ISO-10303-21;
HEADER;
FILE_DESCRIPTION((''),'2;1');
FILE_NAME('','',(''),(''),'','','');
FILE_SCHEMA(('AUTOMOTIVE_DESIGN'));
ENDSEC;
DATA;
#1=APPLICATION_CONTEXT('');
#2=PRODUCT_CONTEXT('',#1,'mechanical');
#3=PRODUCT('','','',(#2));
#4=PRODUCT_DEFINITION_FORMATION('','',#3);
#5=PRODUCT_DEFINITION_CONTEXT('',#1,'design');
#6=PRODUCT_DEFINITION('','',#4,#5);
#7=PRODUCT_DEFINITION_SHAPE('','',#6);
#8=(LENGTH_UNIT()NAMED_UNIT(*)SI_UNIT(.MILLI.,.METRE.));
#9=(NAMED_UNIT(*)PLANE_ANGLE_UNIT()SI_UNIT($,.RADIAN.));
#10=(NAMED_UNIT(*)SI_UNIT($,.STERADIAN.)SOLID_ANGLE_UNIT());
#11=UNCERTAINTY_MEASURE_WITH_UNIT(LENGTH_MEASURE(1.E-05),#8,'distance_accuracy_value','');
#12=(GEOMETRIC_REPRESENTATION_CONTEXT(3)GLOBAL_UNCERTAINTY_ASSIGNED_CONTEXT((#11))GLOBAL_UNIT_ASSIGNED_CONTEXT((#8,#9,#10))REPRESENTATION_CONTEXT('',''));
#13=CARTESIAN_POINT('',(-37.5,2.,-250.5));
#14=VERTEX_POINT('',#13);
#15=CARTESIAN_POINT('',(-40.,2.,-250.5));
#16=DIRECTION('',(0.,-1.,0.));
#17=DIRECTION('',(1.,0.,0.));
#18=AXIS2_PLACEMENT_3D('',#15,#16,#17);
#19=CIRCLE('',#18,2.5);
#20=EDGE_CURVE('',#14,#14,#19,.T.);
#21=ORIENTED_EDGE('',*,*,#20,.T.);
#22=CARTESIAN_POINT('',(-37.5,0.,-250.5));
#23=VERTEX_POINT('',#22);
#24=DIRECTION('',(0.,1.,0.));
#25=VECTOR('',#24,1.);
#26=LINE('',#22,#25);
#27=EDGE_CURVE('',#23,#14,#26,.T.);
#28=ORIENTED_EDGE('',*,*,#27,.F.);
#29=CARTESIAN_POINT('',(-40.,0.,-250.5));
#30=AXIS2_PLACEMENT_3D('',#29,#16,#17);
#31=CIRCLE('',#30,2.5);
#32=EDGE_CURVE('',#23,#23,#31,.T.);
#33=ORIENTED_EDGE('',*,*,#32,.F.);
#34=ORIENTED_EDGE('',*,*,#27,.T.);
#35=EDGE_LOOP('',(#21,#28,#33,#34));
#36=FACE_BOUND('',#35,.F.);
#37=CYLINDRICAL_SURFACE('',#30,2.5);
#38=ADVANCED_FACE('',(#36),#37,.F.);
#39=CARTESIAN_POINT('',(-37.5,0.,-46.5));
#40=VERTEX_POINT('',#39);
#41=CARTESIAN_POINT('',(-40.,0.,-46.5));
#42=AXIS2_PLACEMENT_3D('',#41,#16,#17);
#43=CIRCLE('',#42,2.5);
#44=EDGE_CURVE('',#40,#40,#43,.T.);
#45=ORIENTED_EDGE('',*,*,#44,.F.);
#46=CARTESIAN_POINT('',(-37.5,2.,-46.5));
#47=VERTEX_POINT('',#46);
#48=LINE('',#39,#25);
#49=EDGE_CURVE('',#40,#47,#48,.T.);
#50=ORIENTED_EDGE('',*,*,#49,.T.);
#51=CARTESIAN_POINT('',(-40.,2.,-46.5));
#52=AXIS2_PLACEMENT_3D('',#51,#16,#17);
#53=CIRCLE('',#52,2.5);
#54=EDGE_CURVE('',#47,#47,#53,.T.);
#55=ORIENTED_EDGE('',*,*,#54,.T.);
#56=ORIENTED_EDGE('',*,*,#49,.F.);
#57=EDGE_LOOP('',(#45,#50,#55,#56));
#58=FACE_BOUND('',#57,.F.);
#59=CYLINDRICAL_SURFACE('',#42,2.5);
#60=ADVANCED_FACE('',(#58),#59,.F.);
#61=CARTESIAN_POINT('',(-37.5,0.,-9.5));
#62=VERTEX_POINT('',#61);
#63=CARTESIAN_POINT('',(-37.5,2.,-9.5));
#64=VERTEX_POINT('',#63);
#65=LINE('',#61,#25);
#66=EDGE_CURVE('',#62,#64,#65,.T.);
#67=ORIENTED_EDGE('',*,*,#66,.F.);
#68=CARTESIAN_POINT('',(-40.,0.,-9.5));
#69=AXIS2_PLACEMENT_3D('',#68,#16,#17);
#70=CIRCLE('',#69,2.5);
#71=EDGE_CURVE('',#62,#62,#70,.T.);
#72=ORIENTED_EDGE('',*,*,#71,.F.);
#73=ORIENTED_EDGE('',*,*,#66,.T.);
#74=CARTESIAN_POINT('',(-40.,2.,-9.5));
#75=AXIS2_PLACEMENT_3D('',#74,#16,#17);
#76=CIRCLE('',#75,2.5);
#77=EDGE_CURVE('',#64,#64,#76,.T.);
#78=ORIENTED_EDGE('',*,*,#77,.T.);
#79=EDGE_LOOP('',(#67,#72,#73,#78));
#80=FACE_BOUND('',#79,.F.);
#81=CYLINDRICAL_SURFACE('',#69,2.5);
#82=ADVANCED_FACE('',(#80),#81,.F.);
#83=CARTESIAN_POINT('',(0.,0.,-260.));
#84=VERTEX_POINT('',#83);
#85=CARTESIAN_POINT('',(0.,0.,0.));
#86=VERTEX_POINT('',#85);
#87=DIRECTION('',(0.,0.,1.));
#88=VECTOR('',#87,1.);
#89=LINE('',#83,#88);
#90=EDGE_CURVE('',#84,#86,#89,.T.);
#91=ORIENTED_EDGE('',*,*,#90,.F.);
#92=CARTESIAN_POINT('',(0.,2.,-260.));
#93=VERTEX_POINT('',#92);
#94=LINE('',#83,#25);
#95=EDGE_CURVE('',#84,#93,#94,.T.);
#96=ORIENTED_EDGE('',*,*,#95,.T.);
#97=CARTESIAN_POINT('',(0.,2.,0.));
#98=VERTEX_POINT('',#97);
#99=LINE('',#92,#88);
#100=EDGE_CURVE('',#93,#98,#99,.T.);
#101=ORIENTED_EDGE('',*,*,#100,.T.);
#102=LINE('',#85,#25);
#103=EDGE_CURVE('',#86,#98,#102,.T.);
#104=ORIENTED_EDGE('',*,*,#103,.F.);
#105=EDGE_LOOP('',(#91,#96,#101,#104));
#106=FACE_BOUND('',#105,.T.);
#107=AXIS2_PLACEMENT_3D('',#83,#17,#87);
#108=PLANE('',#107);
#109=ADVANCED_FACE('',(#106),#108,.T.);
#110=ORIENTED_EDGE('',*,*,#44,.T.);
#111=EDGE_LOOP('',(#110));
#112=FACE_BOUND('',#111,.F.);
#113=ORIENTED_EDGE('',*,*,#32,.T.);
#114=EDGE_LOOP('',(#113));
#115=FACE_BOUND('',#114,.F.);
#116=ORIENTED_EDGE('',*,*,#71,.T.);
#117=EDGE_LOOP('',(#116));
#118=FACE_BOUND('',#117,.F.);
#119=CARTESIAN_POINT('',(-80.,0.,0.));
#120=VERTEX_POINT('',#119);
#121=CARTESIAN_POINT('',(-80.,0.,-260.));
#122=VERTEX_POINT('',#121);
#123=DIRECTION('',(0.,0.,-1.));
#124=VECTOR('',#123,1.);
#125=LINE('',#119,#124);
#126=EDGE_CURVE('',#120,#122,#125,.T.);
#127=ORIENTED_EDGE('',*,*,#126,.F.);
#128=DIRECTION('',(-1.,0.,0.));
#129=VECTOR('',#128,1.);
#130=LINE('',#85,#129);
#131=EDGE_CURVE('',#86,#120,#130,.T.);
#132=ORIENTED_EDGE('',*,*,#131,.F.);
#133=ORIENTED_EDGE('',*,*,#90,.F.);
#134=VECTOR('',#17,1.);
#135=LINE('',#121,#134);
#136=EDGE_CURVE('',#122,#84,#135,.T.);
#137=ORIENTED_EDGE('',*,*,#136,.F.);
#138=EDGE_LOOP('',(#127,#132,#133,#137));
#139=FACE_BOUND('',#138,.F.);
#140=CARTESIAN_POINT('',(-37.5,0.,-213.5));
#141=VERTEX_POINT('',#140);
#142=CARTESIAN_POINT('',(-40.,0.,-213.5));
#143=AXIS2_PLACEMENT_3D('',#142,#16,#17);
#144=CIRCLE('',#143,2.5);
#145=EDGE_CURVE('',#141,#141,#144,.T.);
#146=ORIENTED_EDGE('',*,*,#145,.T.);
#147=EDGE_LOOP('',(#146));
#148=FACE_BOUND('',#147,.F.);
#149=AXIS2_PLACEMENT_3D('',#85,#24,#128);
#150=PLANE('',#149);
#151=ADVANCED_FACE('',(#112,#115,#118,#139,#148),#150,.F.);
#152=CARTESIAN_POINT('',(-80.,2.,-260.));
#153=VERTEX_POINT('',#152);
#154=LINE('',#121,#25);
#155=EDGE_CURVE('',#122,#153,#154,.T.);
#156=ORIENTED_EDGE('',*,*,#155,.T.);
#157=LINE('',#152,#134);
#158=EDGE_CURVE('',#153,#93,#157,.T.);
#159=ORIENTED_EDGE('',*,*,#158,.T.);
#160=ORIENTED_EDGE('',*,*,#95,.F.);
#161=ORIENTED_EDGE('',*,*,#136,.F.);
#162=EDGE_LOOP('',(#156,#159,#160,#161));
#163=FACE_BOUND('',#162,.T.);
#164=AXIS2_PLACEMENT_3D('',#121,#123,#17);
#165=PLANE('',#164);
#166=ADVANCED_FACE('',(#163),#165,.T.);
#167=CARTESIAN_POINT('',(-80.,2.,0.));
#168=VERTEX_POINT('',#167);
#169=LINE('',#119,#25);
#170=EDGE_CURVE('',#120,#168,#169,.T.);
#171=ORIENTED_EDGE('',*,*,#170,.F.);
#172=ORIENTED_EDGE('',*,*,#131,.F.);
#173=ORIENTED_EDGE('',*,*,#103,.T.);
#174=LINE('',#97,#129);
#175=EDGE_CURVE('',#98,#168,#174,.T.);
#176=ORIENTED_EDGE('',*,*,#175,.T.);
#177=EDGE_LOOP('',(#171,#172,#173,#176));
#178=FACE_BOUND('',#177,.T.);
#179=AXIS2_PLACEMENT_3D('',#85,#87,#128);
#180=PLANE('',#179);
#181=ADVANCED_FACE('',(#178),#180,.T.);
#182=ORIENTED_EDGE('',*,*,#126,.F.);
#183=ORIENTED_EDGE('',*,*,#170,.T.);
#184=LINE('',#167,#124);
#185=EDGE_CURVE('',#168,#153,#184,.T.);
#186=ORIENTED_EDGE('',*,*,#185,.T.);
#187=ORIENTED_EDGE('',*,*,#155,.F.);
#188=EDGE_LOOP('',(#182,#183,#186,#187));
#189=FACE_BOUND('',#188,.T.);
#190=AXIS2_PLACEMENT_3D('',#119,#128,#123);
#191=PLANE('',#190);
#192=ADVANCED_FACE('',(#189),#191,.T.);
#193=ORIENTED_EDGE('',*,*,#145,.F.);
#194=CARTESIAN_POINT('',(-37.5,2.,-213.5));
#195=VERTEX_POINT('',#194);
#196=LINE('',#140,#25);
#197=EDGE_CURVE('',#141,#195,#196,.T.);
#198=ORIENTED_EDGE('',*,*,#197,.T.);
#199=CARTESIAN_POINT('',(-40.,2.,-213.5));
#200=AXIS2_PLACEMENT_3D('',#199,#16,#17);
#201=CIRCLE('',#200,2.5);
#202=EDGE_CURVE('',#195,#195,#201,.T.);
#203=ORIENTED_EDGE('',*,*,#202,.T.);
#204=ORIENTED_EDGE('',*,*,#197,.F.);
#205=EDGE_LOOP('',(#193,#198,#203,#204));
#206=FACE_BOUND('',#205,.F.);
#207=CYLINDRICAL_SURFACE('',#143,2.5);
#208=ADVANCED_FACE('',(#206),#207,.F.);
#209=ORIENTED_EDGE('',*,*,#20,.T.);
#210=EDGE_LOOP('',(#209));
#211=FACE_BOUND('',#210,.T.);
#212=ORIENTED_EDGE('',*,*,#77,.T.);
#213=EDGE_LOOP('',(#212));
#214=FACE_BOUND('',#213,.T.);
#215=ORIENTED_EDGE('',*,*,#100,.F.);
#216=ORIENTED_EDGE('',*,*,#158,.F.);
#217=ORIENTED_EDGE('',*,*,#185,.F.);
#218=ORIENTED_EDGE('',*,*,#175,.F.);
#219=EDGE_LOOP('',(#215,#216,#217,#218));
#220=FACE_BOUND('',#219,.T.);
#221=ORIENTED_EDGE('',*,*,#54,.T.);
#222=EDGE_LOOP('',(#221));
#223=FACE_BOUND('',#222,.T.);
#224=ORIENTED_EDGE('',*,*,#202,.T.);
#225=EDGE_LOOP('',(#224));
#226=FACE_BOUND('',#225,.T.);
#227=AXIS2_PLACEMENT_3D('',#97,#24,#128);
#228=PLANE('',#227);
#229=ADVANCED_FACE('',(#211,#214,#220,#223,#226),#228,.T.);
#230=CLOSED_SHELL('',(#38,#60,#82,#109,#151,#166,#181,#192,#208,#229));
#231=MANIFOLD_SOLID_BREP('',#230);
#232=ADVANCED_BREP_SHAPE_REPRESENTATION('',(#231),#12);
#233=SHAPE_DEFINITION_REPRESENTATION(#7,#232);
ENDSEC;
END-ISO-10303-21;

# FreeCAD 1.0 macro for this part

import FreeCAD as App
import Part
import Sketcher

V = App.Vector
Q = App.Units.Quantity


def add_polygon(sketch, points):
    """Adds a closed chain of lines whose ends are joined by coincident constraints."""
    first, n = sketch.GeometryCount, len(points)
    for a, b in zip(points, points[1:] + points[:1]):
        sketch.addGeometry(Part.LineSegment(App.Vector(*a, 0), App.Vector(*b, 0)), False)
    for i in range(n):
        sketch.addConstraint(Sketcher.Constraint("Coincident", first + i, 2, first + (i + 1) % n, 1))

doc = App.newDocument("Part")
body = doc.addObject("PartDesign::Body", "Body")

sketch1 = body.newObject("Sketcher::SketchObject", "Sketch")
sketch1.AttachmentSupport = (doc.getObject("XZ_Plane"), [""])
sketch1.MapMode = "FlatFace"
add_polygon(sketch1, [(-80, 0), (0, 0), (0, -260), (-80, -260)])
sketch1.addConstraint([
    Sketcher.Constraint("Horizontal", 0),
    Sketcher.Constraint("Vertical", 1),
    Sketcher.Constraint("Horizontal", 2),
    Sketcher.Constraint("Vertical", 3),
    Sketcher.Constraint("Coincident", 0, 2, -1, 1),
    Sketcher.Constraint("DistanceX", 0, 1, 0, 2, Q("80 mm")),
    Sketcher.Constraint("DistanceY", 1, 2, 1, 1, Q("260 mm")),
])
pad1 = body.newObject("PartDesign::Pad", "Pad")
pad1.Profile = sketch1
pad1.Length = 2
pad1.Reversed = True

sketch2 = body.newObject("Sketcher::SketchObject", "Sketch001")
sketch2.AttachmentSupport = (doc.getObject("XZ_Plane"), [""])
sketch2.MapMode = "FlatFace"
sketch2.addGeometry([
    Part.Circle(V(-40, -9.5, 0), V(0, 0, 1), 2.5),
    Part.Circle(V(-40, -46.5, 0), V(0, 0, 1), 2.5),
    Part.Circle(V(-40, -250.5, 0), V(0, 0, 1), 2.5),
    Part.Circle(V(-40, -213.5, 0), V(0, 0, 1), 2.5),
], False)
sketch2.addConstraint([
    Sketcher.Constraint("Equal", 0, 1),
    Sketcher.Constraint("Equal", 1, 2),
    Sketcher.Constraint("Equal", 2, 3),
    Sketcher.Constraint("Vertical", 0, 3, 1, 3),
    Sketcher.Constraint("Vertical", 1, 3, 2, 3),
    Sketcher.Constraint("Vertical", 2, 3, 3, 3),
    Sketcher.Constraint("Diameter", 0, Q("5 mm")),
    Sketcher.Constraint("DistanceX", 0, 3, -1, 1, Q("40 mm")),
    Sketcher.Constraint("DistanceY", 1, 3, 0, 3, Q("37 mm")),
    Sketcher.Constraint("DistanceY", 2, 3, 3, 3, Q("37 mm")),
    Sketcher.Constraint("DistanceY", 0, 3, -1, 1, Q("9.5 mm")),
    Sketcher.Constraint("DistanceY", 2, 3, 1, 3, Q("204 mm")),
])
pocket1 = body.newObject("PartDesign::Pocket", "Pocket")
pocket1.Profile = sketch2
pocket1.Length = 10

doc.recompute()
